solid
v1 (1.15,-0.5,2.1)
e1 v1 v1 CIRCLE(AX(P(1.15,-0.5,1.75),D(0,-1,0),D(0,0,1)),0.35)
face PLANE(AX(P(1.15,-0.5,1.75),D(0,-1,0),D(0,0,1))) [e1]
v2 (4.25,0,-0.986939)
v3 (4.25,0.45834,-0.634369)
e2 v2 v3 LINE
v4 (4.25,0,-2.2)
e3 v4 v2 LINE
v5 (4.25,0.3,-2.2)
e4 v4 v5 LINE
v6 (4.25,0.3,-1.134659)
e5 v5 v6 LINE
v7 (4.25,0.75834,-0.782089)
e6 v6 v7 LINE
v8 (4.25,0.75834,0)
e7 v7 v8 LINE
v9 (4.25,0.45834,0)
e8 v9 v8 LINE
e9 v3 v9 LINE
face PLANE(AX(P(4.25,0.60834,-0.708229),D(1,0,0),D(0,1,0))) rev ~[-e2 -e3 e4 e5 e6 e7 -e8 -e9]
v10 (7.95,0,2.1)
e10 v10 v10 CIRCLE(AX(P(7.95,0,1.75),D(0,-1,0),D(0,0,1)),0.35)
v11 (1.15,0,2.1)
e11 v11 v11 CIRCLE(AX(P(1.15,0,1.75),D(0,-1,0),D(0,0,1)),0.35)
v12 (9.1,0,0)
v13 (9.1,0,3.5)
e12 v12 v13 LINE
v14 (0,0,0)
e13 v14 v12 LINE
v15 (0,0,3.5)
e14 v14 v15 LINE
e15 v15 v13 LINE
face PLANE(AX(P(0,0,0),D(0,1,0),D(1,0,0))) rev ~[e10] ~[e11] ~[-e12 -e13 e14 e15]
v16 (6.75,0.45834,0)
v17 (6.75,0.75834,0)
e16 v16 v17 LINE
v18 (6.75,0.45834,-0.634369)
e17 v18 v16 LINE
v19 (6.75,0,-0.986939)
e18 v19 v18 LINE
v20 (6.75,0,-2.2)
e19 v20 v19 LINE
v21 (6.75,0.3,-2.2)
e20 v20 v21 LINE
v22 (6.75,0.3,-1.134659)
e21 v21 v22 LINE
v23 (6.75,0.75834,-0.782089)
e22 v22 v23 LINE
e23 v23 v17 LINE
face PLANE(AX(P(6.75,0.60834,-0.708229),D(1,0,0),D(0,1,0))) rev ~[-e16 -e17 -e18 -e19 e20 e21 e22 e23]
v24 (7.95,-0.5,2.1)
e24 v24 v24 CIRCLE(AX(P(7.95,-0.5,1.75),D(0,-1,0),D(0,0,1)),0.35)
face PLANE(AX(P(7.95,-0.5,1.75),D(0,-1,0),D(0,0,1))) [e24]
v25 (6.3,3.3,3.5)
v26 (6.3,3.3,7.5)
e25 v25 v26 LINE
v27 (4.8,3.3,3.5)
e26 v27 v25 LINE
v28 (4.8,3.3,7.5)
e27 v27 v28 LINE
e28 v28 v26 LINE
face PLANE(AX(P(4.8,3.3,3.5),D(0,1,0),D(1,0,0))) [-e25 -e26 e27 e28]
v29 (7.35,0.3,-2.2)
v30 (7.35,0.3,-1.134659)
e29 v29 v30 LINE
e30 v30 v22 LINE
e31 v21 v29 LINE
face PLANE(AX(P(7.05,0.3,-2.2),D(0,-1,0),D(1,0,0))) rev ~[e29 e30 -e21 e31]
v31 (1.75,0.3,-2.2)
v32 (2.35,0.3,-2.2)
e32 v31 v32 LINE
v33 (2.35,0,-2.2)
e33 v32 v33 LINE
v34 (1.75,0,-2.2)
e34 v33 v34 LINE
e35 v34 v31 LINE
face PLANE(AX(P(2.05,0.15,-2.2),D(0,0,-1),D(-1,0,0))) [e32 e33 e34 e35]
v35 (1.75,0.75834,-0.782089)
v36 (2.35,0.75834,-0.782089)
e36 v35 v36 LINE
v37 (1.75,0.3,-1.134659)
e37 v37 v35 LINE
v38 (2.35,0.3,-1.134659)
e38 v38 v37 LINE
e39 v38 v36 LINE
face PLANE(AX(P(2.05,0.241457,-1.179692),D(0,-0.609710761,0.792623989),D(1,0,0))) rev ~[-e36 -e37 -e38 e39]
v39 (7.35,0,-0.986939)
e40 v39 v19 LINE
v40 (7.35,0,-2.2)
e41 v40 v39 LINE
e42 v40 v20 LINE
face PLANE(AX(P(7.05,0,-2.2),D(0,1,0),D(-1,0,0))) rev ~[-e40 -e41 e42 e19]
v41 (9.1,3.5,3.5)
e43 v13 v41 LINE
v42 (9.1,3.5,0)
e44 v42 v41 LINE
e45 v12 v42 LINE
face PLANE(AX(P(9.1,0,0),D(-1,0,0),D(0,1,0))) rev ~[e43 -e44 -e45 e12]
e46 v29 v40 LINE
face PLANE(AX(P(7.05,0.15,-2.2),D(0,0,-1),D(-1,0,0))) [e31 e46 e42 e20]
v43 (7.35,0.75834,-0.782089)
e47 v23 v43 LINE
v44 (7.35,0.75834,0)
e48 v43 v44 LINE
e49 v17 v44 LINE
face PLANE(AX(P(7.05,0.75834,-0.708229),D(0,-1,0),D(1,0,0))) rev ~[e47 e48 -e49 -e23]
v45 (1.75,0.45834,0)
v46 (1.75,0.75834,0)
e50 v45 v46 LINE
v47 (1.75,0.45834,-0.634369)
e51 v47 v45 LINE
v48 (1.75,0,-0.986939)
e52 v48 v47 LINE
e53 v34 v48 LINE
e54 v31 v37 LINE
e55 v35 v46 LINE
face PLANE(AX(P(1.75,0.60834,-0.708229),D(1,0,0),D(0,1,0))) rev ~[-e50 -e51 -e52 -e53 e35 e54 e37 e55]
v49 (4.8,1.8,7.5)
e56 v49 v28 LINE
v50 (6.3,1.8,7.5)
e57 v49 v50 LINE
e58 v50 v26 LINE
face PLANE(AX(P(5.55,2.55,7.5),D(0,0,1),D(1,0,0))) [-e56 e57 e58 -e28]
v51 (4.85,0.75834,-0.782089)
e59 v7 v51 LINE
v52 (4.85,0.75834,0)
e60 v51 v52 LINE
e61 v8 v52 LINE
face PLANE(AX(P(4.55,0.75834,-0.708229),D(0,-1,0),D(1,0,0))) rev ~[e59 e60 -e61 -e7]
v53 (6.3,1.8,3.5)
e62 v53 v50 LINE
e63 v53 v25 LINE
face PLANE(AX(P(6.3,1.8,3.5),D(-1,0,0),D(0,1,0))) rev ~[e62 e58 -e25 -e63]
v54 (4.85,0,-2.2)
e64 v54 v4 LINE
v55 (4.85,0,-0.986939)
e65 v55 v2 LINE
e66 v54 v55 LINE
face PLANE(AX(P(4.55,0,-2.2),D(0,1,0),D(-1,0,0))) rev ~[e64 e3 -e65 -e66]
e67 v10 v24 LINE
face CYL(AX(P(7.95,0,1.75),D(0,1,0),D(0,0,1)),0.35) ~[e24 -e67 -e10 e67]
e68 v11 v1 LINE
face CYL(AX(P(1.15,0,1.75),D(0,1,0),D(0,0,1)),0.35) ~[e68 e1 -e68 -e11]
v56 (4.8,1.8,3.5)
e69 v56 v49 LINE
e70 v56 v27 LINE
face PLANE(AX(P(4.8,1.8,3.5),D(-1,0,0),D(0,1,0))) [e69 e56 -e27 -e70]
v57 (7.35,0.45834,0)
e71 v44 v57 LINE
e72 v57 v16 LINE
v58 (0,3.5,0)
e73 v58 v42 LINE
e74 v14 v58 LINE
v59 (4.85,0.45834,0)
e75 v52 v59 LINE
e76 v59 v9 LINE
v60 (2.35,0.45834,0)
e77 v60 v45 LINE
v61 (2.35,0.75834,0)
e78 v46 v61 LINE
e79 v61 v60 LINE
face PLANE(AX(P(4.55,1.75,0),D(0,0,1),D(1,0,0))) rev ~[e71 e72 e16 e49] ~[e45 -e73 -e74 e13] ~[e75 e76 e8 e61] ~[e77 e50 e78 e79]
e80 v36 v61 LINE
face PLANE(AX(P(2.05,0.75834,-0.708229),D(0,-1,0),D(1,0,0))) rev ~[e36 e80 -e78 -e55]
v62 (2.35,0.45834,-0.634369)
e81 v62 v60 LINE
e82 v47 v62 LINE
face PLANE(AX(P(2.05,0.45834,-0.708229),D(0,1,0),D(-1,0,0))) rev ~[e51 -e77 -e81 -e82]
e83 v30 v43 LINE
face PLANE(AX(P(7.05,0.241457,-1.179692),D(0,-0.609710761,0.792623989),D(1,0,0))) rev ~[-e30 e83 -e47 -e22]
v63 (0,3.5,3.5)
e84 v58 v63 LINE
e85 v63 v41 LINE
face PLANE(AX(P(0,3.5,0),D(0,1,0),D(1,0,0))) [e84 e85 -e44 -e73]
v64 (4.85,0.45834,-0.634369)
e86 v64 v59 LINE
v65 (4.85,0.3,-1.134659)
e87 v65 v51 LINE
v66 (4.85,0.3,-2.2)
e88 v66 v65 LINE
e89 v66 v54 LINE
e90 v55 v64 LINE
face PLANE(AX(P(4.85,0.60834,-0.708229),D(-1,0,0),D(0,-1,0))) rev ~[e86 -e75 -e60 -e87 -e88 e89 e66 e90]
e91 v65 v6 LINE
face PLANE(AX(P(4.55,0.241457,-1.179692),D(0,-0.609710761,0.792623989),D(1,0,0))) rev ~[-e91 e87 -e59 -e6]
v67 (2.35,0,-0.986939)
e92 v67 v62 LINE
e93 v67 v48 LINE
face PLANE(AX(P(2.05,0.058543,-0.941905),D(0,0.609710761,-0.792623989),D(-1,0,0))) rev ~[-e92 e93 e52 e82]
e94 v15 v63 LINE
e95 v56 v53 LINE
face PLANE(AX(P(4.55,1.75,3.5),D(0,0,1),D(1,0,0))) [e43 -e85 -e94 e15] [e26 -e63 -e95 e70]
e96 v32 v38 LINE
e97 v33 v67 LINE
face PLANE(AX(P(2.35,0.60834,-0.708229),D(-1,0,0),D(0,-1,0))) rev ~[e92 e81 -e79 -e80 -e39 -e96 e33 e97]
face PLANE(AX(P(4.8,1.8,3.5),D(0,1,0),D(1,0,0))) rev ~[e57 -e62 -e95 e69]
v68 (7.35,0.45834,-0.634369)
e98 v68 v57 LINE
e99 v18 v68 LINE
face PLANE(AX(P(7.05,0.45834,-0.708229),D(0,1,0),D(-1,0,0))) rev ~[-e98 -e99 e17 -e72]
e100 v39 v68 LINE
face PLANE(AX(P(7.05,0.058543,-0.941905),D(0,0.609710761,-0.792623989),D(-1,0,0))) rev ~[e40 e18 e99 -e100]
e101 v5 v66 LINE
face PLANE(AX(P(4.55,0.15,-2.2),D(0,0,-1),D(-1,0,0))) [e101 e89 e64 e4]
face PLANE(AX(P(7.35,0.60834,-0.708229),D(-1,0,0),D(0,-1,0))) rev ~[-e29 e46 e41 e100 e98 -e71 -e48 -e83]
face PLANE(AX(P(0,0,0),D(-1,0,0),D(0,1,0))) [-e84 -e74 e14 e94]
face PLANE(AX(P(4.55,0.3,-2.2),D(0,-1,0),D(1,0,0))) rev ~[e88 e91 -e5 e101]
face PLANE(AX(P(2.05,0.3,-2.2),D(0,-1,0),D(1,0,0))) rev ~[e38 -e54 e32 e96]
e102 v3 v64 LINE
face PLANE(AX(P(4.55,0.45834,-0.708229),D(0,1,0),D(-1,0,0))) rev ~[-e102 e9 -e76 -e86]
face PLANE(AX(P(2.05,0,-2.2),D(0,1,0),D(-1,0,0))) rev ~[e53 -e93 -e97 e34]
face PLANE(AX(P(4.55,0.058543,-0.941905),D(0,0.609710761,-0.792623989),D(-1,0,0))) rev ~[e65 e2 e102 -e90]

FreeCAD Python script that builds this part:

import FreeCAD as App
import Part
import Sketcher

doc = App.newDocument("Part")
body = doc.addObject("PartDesign::Body", "Body")

sketch1 = body.newObject("Sketcher::SketchObject", "Sketch")
sketch1.AttachmentSupport = (doc.getObject("XY_Plane"), [""])
sketch1.MapMode = "FlatFace"
sketch1.addGeometry(Part.LineSegment(App.Vector(0, 3.5, 0), App.Vector(0, 0, 0)), False)
sketch1.addGeometry(Part.LineSegment(App.Vector(0, 0, 0), App.Vector(9.1, 0, 0)), False)
sketch1.addGeometry(Part.LineSegment(App.Vector(9.1, 0, 0), App.Vector(9.1, 3.5, 0)), False)
sketch1.addGeometry(Part.LineSegment(App.Vector(9.1, 3.5, 0), App.Vector(0, 3.5, 0)), False)
sketch1.addConstraint(Sketcher.Constraint("Coincident", 0, 2, 1, 1))
sketch1.addConstraint(Sketcher.Constraint("Coincident", 1, 2, 2, 1))
sketch1.addConstraint(Sketcher.Constraint("Coincident", 2, 2, 3, 1))
sketch1.addConstraint(Sketcher.Constraint("Coincident", 3, 2, 0, 1))
sketch1.addConstraint(Sketcher.Constraint("Vertical", 0))
sketch1.addConstraint(Sketcher.Constraint("Horizontal", 1))
sketch1.addConstraint(Sketcher.Constraint("Vertical", 2))
sketch1.addConstraint(Sketcher.Constraint("Horizontal", 3))
sketch1.addConstraint(Sketcher.Constraint("Coincident", 0, 2, -1, 1))
sketch1.addConstraint(Sketcher.Constraint("DistanceX", 1, 1, 1, 2, 9.1))
sketch1.addConstraint(Sketcher.Constraint("DistanceY", 0, 2, 0, 1, 3.5))
pad1 = body.newObject("PartDesign::Pad", "Pad")
pad1.Profile = sketch1
pad1.Length = 3.5

sketch2 = body.newObject("Sketcher::SketchObject", "Sketch001")
sketch2.AttachmentSupport = (doc.getObject("XY_Plane"), [""])
sketch2.MapMode = "FlatFace"
sketch2.AttachmentOffset = App.Placement(App.Vector(0, 0, 3.5), App.Rotation())
sketch2.addGeometry(Part.LineSegment(App.Vector(4.8, 3.3, 0), App.Vector(4.8, 1.8, 0)), False)
sketch2.addGeometry(Part.LineSegment(App.Vector(4.8, 1.8, 0), App.Vector(6.3, 1.8, 0)), False)
sketch2.addGeometry(Part.LineSegment(App.Vector(6.3, 1.8, 0), App.Vector(6.3, 3.3, 0)), False)
sketch2.addGeometry(Part.LineSegment(App.Vector(6.3, 3.3, 0), App.Vector(4.8, 3.3, 0)), False)
sketch2.addConstraint(Sketcher.Constraint("Coincident", 0, 2, 1, 1))
sketch2.addConstraint(Sketcher.Constraint("Coincident", 1, 2, 2, 1))
sketch2.addConstraint(Sketcher.Constraint("Coincident", 2, 2, 3, 1))
sketch2.addConstraint(Sketcher.Constraint("Coincident", 3, 2, 0, 1))
sketch2.addConstraint(Sketcher.Constraint("Vertical", 0))
sketch2.addConstraint(Sketcher.Constraint("Horizontal", 1))
sketch2.addConstraint(Sketcher.Constraint("Vertical", 2))
sketch2.addConstraint(Sketcher.Constraint("Horizontal", 3))
sketch2.addConstraint(Sketcher.Constraint("Equal", 3, 0))
sketch2.addConstraint(Sketcher.Constraint("DistanceX", 1, 1, 1, 2, 1.5))
sketch2.addConstraint(Sketcher.Constraint("DistanceX", -1, 1, 0, 2, 4.8))
sketch2.addConstraint(Sketcher.Constraint("DistanceY", -1, 1, 0, 2, 1.8))
pad2 = body.newObject("PartDesign::Pad", "Pad001")
pad2.Profile = sketch2
pad2.Length = 4

sketch3 = body.newObject("Sketcher::SketchObject", "Sketch002")
sketch3.AttachmentSupport = (doc.getObject("XZ_Plane"), [""])
sketch3.MapMode = "FlatFace"
sketch3.addGeometry(Part.Circle(App.Vector(1.15, 1.75, 0), App.Vector(0, 0, 1), 0.35), False)
sketch3.addGeometry(Part.Circle(App.Vector(7.95, 1.75, 0), App.Vector(0, 0, 1), 0.35), False)
sketch3.addConstraint(Sketcher.Constraint("Equal", 0, 1))
sketch3.addConstraint(Sketcher.Constraint("Horizontal", 0, 3, 1, 3))
sketch3.addConstraint(Sketcher.Constraint("Diameter", 0, 0.7))
sketch3.addConstraint(Sketcher.Constraint("DistanceX", 0, 3, 1, 3, 6.8))
sketch3.addConstraint(Sketcher.Constraint("DistanceX", -1, 1, 0, 3, 1.15))
sketch3.addConstraint(Sketcher.Constraint("DistanceY", -1, 1, 0, 3, 1.75))
pad3 = body.newObject("PartDesign::Pad", "Pad002")
pad3.Profile = sketch3
pad3.Length = 0.5

sketch4 = body.newObject("Sketcher::SketchObject", "Sketch003")
sketch4.AttachmentSupport = (doc.getObject("XY_Plane"), [""])
sketch4.MapMode = "FlatFace"
sketch4.AttachmentOffset = App.Placement(App.Vector(0, 0, -2.2), App.Rotation())
sketch4.addGeometry(Part.LineSegment(App.Vector(4.85, 0.3, 0), App.Vector(4.85, 0, 0)), False)
sketch4.addGeometry(Part.LineSegment(App.Vector(4.85, 0, 0), App.Vector(4.25, 0, 0)), False)
sketch4.addGeometry(Part.LineSegment(App.Vector(4.25, 0, 0), App.Vector(4.25, 0.3, 0)), False)
sketch4.addGeometry(Part.LineSegment(App.Vector(4.25, 0.3, 0), App.Vector(4.85, 0.3, 0)), False)
sketch4.addConstraint(Sketcher.Constraint("Coincident", 0, 2, 1, 1))
sketch4.addConstraint(Sketcher.Constraint("Coincident", 1, 2, 2, 1))
sketch4.addConstraint(Sketcher.Constraint("Coincident", 2, 2, 3, 1))
sketch4.addConstraint(Sketcher.Constraint("Coincident", 3, 2, 0, 1))
sketch4.addConstraint(Sketcher.Constraint("Vertical", 0))
sketch4.addConstraint(Sketcher.Constraint("Horizontal", 1))
sketch4.addConstraint(Sketcher.Constraint("Vertical", 2))
sketch4.addConstraint(Sketcher.Constraint("Horizontal", 3))
sketch4.addConstraint(Sketcher.Constraint("PointOnObject", 0, 2, -1))
sketch4.addConstraint(Sketcher.Constraint("DistanceX", 1, 2, 1, 1, 0.6))
sketch4.addConstraint(Sketcher.Constraint("DistanceY", 0, 2, 0, 1, 0.3))
sketch4.addConstraint(Sketcher.Constraint("DistanceX", -1, 1, 0, 2, 4.85))

sketch5 = body.newObject("Sketcher::SketchObject", "Sketch004")
sketch5.AttachmentSupport = (doc.getObject("YZ_Plane"), [""])
sketch5.MapMode = "FlatFace"
sketch5.AttachmentOffset = App.Placement(App.Vector(0, 0, 4.55), App.Rotation())
sketch5.addGeometry(Part.LineSegment(App.Vector(0.15, -2.2, 0), App.Vector(0.15, -1.060799, 0)), False)
sketch5.addGeometry(Part.LineSegment(App.Vector(0.15, -1.060799, 0), App.Vector(0.60834, -0.708229, 0)), False)
sketch5.addGeometry(Part.LineSegment(App.Vector(0.60834, -0.708229, 0), App.Vector(0.60834, 0, 0)), False)
sketch5.addConstraint(Sketcher.Constraint("Coincident", 0, 2, 1, 1))
sketch5.addConstraint(Sketcher.Constraint("Coincident", 1, 2, 2, 1))
sketch5.addConstraint(Sketcher.Constraint("Vertical", 0))
sketch5.addConstraint(Sketcher.Constraint("Vertical", 2))
sketch5.addConstraint(Sketcher.Constraint("PointOnObject", 2, 2, -1))
sketch5.addConstraint(Sketcher.Constraint("DistanceY", 0, 1, -1, 1, 2.2))
sketch5.addConstraint(Sketcher.Constraint("DistanceX", -1, 1, 0, 1, 0.15))
sketch5.addConstraint(Sketcher.Constraint("DistanceY", 0, 1, 0, 2, 1.139201))
sketch5.addConstraint(Sketcher.Constraint("DistanceY", 2, 1, 2, 2, 0.708229))
sketch5.addConstraint(Sketcher.Constraint("DistanceX", -1, 1, 1, 2, 0.60834))
doc.recompute()

additivepipe = body.newObject("PartDesign::AdditivePipe", "AdditivePipe")
additivepipe.Profile = sketch4
additivepipe.Spine = (sketch5, ["Edge1", "Edge2", "Edge3"])
additivepipe.Transition = "Right corner"
doc.recompute()

linearpattern = body.newObject("PartDesign::LinearPattern", "LinearPattern")
linearpattern.Originals = [additivepipe]
linearpattern.Direction = (doc.getObject("X_Axis"), [""])
linearpattern.Mode = "offset"
linearpattern.Offset = 2.5
linearpattern.Occurrences = 2
body.Tip = linearpattern
doc.recompute()

linearpattern2 = body.newObject("PartDesign::LinearPattern", "LinearPattern001")
linearpattern2.Originals = [additivepipe]
linearpattern2.Direction = (doc.getObject("X_Axis"), [""])
linearpattern2.Mode = "offset"
linearpattern2.Offset = 2.5
linearpattern2.Occurrences = 2
linearpattern2.Reversed = True
body.Tip = linearpattern2

doc.recompute()
